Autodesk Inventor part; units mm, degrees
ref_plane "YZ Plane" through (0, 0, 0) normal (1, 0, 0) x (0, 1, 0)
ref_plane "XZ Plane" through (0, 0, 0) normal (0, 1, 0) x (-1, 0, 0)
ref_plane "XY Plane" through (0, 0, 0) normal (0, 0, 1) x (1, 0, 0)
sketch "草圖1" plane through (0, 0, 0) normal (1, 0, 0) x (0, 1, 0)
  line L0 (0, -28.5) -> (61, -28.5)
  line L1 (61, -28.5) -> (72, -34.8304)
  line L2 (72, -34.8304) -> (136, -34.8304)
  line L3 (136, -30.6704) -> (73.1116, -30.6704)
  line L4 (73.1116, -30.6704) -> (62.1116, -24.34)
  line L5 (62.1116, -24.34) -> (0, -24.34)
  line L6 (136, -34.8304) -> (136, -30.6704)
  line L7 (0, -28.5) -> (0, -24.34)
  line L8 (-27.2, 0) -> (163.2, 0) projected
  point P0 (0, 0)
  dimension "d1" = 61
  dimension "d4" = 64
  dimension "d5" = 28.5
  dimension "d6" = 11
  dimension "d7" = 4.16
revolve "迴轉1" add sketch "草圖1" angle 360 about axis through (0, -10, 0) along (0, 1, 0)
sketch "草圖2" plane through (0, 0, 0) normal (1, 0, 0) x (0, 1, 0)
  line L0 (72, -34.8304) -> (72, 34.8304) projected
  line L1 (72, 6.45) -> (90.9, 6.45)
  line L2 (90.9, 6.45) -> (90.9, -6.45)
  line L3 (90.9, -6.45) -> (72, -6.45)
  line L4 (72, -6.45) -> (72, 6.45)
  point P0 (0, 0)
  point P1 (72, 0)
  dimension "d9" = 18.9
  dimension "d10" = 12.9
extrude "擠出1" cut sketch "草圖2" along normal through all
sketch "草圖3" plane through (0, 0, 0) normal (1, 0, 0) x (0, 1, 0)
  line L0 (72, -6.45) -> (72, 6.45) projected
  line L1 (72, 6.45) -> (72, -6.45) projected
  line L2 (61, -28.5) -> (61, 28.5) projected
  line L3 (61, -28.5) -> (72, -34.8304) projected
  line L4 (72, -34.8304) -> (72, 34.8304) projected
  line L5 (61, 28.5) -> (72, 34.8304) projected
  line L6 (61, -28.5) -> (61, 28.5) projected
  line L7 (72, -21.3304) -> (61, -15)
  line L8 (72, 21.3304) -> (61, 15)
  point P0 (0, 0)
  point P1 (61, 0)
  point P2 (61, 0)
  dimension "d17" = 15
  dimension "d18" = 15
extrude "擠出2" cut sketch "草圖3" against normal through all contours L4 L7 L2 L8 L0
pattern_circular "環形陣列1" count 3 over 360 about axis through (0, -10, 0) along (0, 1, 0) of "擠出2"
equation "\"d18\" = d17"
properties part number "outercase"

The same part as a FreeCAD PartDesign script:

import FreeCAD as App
import Part
import Sketcher

V = App.Vector
Q = App.Units.Quantity

doc = App.newDocument("Part")
body = doc.addObject("PartDesign::Body", "Body")

# Sketch on YZ plane
sketch1 = doc.addObject("Sketcher::SketchObject", "Sketch")
body.addObject(sketch1)
sketch1.AttachmentSupport = (doc.YZ_Plane, [""])
sketch1.MapMode = "FlatFace"
sketch1.addGeometry([
    Part.LineSegment(V(0, -24.3, 0), V(0, -28.5, 0)),  # 0
    Part.LineSegment(V(0, -28.5, 0), V(61, -28.5, 0)),  # 1
    Part.LineSegment(V(61, -28.5, 0), V(72, -34.8, 0)),  # 2
    Part.LineSegment(V(72, -34.8, 0), V(136, -34.8, 0)),  # 3
    Part.LineSegment(V(136, -34.8, 0), V(136, -30.7, 0)),  # 4
    Part.LineSegment(V(136, -30.7, 0), V(73.1, -30.7, 0)),  # 5
    Part.LineSegment(V(73.1, -30.7, 0), V(62.1, -24.3, 0)),  # 6
    Part.LineSegment(V(62.1, -24.3, 0), V(0, -24.3, 0)),  # 7
], False)
sketch1.addConstraint([
    Sketcher.Constraint("Coincident", 0, 2, 1, 1),
    Sketcher.Constraint("Coincident", 1, 2, 2, 1),
    Sketcher.Constraint("Coincident", 2, 2, 3, 1),
    Sketcher.Constraint("Coincident", 3, 2, 4, 1),
    Sketcher.Constraint("Coincident", 4, 2, 5, 1),
    Sketcher.Constraint("Coincident", 5, 2, 6, 1),
    Sketcher.Constraint("Coincident", 6, 2, 7, 1),
    Sketcher.Constraint("Coincident", 7, 2, 0, 1),
    Sketcher.Constraint("Vertical", 0),
    Sketcher.Constraint("Horizontal", 1),
    Sketcher.Constraint("Horizontal", 3),
    Sketcher.Constraint("Vertical", 4),
    Sketcher.Constraint("Horizontal", 5),
    Sketcher.Constraint("Horizontal", 7),
    Sketcher.Constraint("PointOnObject", 0, 2, -2),
    Sketcher.Constraint("Parallel", 2, 6),
    Sketcher.Constraint("Equal", 0, 4),
    Sketcher.Constraint("DistanceX", 1, 1, 1, 2, 61.0),
    Sketcher.Constraint("DistanceX", 3, 1, 3, 2, 64.0),
    Sketcher.Constraint("DistanceX", 1, 2, 2, 2, 11.0),
    Sketcher.Constraint("DistanceY", 0, 2, 0, 1, 4.16),
    Sketcher.Constraint("DistanceY", 0, 2, -1, 1, 28.5),
    Sketcher.Constraint("Angle", 2, Q("-29.92 deg")),
    Sketcher.Constraint("DistanceX", 5, 2, 5, 1, 62.8884),
])
revolution = doc.addObject("PartDesign::Revolution", "Revolution")
body.addObject(revolution)
revolution.Profile = sketch1
revolution.ReferenceAxis = (sketch1, ["H_Axis"])
revolution.Angle = 360

# Sketch on YZ plane
sketch2 = doc.addObject("Sketcher::SketchObject", "Sketch001")
body.addObject(sketch2)
sketch2.AttachmentSupport = (doc.YZ_Plane, [""])
sketch2.MapMode = "FlatFace"
sketch2.addGeometry([
    Part.LineSegment(V(72, 6, 0), V(72, -6, 0)),
    Part.LineSegment(V(72, -6, 0), V(91, -6, 0)),
    Part.LineSegment(V(91, -6, 0), V(91, 6, 0)),
    Part.LineSegment(V(91, 6, 0), V(72, 6, 0)),
], False)
sketch2.addConstraint([
    Sketcher.Constraint("Coincident", 0, 2, 1, 1),
    Sketcher.Constraint("Coincident", 1, 2, 2, 1),
    Sketcher.Constraint("Coincident", 2, 2, 3, 1),
    Sketcher.Constraint("Coincident", 3, 2, 0, 1),
    Sketcher.Constraint("Vertical", 0),
    Sketcher.Constraint("Horizontal", 1),
    Sketcher.Constraint("Vertical", 2),
    Sketcher.Constraint("Horizontal", 3),
    Sketcher.Constraint("DistanceX", 1, 1, 1, 2, 18.9),
    Sketcher.Constraint("DistanceY", 0, 2, 0, 1, 12.9),
    Sketcher.Constraint("DistanceX", -1, 1, 0, 2, 72.0),
    Sketcher.Constraint("DistanceY", 0, 2, -1, 1, 6.45),
])
pocket1 = doc.addObject("PartDesign::Pocket", "Pocket")
body.addObject(pocket1)
pocket1.Profile = sketch2
pocket1.Type = "ThroughAll"
pocket1.Reversed = True

# Sketch on YZ plane
sketch3 = doc.addObject("Sketcher::SketchObject", "Sketch002")
body.addObject(sketch3)
sketch3.AttachmentSupport = (doc.YZ_Plane, [""])
sketch3.MapMode = "FlatFace"
sketch3.addGeometry([
    Part.LineSegment(V(72, -21, 0), V(72, 21, 0)),
    Part.LineSegment(V(72, 21, 0), V(61, 15, 0)),
    Part.LineSegment(V(61, 15, 0), V(61, -15, 0)),
    Part.LineSegment(V(61, -15, 0), V(72, -21, 0)),
], False)
sketch3.addConstraint([
    Sketcher.Constraint("Coincident", 0, 2, 1, 1),
    Sketcher.Constraint("Coincident", 1, 2, 2, 1),
    Sketcher.Constraint("Coincident", 2, 2, 3, 1),
    Sketcher.Constraint("Coincident", 3, 2, 0, 1),
    Sketcher.Constraint("Vertical", 0),
    Sketcher.Constraint("Vertical", 2),
    Sketcher.Constraint("Equal", 1, 3),
    Sketcher.Constraint("DistanceY", -1, 1, 1, 2, 15.0),
    Sketcher.Constraint("DistanceY", 2, 2, -1, 1, 15.0),
    Sketcher.Constraint("DistanceX", -1, 1, 0, 2, 72.0),
    Sketcher.Constraint("DistanceX", -1, 1, 1, 2, 61.0),
    Sketcher.Constraint("Angle", 1, Q("-150.08 deg")),
])
pocket2 = doc.addObject("PartDesign::Pocket", "Pocket001")
body.addObject(pocket2)
pocket2.Profile = sketch3
pocket2.Type = "ThroughAll"
doc.recompute()

polarpattern = doc.addObject("PartDesign::PolarPattern", "PolarPattern")
body.addObject(polarpattern)
polarpattern.Originals = [pocket2]
polarpattern.Axis = (doc.Y_Axis, [""])
polarpattern.Angle = 360
polarpattern.Occurrences = 3
body.Tip = polarpattern

doc.recompute()
